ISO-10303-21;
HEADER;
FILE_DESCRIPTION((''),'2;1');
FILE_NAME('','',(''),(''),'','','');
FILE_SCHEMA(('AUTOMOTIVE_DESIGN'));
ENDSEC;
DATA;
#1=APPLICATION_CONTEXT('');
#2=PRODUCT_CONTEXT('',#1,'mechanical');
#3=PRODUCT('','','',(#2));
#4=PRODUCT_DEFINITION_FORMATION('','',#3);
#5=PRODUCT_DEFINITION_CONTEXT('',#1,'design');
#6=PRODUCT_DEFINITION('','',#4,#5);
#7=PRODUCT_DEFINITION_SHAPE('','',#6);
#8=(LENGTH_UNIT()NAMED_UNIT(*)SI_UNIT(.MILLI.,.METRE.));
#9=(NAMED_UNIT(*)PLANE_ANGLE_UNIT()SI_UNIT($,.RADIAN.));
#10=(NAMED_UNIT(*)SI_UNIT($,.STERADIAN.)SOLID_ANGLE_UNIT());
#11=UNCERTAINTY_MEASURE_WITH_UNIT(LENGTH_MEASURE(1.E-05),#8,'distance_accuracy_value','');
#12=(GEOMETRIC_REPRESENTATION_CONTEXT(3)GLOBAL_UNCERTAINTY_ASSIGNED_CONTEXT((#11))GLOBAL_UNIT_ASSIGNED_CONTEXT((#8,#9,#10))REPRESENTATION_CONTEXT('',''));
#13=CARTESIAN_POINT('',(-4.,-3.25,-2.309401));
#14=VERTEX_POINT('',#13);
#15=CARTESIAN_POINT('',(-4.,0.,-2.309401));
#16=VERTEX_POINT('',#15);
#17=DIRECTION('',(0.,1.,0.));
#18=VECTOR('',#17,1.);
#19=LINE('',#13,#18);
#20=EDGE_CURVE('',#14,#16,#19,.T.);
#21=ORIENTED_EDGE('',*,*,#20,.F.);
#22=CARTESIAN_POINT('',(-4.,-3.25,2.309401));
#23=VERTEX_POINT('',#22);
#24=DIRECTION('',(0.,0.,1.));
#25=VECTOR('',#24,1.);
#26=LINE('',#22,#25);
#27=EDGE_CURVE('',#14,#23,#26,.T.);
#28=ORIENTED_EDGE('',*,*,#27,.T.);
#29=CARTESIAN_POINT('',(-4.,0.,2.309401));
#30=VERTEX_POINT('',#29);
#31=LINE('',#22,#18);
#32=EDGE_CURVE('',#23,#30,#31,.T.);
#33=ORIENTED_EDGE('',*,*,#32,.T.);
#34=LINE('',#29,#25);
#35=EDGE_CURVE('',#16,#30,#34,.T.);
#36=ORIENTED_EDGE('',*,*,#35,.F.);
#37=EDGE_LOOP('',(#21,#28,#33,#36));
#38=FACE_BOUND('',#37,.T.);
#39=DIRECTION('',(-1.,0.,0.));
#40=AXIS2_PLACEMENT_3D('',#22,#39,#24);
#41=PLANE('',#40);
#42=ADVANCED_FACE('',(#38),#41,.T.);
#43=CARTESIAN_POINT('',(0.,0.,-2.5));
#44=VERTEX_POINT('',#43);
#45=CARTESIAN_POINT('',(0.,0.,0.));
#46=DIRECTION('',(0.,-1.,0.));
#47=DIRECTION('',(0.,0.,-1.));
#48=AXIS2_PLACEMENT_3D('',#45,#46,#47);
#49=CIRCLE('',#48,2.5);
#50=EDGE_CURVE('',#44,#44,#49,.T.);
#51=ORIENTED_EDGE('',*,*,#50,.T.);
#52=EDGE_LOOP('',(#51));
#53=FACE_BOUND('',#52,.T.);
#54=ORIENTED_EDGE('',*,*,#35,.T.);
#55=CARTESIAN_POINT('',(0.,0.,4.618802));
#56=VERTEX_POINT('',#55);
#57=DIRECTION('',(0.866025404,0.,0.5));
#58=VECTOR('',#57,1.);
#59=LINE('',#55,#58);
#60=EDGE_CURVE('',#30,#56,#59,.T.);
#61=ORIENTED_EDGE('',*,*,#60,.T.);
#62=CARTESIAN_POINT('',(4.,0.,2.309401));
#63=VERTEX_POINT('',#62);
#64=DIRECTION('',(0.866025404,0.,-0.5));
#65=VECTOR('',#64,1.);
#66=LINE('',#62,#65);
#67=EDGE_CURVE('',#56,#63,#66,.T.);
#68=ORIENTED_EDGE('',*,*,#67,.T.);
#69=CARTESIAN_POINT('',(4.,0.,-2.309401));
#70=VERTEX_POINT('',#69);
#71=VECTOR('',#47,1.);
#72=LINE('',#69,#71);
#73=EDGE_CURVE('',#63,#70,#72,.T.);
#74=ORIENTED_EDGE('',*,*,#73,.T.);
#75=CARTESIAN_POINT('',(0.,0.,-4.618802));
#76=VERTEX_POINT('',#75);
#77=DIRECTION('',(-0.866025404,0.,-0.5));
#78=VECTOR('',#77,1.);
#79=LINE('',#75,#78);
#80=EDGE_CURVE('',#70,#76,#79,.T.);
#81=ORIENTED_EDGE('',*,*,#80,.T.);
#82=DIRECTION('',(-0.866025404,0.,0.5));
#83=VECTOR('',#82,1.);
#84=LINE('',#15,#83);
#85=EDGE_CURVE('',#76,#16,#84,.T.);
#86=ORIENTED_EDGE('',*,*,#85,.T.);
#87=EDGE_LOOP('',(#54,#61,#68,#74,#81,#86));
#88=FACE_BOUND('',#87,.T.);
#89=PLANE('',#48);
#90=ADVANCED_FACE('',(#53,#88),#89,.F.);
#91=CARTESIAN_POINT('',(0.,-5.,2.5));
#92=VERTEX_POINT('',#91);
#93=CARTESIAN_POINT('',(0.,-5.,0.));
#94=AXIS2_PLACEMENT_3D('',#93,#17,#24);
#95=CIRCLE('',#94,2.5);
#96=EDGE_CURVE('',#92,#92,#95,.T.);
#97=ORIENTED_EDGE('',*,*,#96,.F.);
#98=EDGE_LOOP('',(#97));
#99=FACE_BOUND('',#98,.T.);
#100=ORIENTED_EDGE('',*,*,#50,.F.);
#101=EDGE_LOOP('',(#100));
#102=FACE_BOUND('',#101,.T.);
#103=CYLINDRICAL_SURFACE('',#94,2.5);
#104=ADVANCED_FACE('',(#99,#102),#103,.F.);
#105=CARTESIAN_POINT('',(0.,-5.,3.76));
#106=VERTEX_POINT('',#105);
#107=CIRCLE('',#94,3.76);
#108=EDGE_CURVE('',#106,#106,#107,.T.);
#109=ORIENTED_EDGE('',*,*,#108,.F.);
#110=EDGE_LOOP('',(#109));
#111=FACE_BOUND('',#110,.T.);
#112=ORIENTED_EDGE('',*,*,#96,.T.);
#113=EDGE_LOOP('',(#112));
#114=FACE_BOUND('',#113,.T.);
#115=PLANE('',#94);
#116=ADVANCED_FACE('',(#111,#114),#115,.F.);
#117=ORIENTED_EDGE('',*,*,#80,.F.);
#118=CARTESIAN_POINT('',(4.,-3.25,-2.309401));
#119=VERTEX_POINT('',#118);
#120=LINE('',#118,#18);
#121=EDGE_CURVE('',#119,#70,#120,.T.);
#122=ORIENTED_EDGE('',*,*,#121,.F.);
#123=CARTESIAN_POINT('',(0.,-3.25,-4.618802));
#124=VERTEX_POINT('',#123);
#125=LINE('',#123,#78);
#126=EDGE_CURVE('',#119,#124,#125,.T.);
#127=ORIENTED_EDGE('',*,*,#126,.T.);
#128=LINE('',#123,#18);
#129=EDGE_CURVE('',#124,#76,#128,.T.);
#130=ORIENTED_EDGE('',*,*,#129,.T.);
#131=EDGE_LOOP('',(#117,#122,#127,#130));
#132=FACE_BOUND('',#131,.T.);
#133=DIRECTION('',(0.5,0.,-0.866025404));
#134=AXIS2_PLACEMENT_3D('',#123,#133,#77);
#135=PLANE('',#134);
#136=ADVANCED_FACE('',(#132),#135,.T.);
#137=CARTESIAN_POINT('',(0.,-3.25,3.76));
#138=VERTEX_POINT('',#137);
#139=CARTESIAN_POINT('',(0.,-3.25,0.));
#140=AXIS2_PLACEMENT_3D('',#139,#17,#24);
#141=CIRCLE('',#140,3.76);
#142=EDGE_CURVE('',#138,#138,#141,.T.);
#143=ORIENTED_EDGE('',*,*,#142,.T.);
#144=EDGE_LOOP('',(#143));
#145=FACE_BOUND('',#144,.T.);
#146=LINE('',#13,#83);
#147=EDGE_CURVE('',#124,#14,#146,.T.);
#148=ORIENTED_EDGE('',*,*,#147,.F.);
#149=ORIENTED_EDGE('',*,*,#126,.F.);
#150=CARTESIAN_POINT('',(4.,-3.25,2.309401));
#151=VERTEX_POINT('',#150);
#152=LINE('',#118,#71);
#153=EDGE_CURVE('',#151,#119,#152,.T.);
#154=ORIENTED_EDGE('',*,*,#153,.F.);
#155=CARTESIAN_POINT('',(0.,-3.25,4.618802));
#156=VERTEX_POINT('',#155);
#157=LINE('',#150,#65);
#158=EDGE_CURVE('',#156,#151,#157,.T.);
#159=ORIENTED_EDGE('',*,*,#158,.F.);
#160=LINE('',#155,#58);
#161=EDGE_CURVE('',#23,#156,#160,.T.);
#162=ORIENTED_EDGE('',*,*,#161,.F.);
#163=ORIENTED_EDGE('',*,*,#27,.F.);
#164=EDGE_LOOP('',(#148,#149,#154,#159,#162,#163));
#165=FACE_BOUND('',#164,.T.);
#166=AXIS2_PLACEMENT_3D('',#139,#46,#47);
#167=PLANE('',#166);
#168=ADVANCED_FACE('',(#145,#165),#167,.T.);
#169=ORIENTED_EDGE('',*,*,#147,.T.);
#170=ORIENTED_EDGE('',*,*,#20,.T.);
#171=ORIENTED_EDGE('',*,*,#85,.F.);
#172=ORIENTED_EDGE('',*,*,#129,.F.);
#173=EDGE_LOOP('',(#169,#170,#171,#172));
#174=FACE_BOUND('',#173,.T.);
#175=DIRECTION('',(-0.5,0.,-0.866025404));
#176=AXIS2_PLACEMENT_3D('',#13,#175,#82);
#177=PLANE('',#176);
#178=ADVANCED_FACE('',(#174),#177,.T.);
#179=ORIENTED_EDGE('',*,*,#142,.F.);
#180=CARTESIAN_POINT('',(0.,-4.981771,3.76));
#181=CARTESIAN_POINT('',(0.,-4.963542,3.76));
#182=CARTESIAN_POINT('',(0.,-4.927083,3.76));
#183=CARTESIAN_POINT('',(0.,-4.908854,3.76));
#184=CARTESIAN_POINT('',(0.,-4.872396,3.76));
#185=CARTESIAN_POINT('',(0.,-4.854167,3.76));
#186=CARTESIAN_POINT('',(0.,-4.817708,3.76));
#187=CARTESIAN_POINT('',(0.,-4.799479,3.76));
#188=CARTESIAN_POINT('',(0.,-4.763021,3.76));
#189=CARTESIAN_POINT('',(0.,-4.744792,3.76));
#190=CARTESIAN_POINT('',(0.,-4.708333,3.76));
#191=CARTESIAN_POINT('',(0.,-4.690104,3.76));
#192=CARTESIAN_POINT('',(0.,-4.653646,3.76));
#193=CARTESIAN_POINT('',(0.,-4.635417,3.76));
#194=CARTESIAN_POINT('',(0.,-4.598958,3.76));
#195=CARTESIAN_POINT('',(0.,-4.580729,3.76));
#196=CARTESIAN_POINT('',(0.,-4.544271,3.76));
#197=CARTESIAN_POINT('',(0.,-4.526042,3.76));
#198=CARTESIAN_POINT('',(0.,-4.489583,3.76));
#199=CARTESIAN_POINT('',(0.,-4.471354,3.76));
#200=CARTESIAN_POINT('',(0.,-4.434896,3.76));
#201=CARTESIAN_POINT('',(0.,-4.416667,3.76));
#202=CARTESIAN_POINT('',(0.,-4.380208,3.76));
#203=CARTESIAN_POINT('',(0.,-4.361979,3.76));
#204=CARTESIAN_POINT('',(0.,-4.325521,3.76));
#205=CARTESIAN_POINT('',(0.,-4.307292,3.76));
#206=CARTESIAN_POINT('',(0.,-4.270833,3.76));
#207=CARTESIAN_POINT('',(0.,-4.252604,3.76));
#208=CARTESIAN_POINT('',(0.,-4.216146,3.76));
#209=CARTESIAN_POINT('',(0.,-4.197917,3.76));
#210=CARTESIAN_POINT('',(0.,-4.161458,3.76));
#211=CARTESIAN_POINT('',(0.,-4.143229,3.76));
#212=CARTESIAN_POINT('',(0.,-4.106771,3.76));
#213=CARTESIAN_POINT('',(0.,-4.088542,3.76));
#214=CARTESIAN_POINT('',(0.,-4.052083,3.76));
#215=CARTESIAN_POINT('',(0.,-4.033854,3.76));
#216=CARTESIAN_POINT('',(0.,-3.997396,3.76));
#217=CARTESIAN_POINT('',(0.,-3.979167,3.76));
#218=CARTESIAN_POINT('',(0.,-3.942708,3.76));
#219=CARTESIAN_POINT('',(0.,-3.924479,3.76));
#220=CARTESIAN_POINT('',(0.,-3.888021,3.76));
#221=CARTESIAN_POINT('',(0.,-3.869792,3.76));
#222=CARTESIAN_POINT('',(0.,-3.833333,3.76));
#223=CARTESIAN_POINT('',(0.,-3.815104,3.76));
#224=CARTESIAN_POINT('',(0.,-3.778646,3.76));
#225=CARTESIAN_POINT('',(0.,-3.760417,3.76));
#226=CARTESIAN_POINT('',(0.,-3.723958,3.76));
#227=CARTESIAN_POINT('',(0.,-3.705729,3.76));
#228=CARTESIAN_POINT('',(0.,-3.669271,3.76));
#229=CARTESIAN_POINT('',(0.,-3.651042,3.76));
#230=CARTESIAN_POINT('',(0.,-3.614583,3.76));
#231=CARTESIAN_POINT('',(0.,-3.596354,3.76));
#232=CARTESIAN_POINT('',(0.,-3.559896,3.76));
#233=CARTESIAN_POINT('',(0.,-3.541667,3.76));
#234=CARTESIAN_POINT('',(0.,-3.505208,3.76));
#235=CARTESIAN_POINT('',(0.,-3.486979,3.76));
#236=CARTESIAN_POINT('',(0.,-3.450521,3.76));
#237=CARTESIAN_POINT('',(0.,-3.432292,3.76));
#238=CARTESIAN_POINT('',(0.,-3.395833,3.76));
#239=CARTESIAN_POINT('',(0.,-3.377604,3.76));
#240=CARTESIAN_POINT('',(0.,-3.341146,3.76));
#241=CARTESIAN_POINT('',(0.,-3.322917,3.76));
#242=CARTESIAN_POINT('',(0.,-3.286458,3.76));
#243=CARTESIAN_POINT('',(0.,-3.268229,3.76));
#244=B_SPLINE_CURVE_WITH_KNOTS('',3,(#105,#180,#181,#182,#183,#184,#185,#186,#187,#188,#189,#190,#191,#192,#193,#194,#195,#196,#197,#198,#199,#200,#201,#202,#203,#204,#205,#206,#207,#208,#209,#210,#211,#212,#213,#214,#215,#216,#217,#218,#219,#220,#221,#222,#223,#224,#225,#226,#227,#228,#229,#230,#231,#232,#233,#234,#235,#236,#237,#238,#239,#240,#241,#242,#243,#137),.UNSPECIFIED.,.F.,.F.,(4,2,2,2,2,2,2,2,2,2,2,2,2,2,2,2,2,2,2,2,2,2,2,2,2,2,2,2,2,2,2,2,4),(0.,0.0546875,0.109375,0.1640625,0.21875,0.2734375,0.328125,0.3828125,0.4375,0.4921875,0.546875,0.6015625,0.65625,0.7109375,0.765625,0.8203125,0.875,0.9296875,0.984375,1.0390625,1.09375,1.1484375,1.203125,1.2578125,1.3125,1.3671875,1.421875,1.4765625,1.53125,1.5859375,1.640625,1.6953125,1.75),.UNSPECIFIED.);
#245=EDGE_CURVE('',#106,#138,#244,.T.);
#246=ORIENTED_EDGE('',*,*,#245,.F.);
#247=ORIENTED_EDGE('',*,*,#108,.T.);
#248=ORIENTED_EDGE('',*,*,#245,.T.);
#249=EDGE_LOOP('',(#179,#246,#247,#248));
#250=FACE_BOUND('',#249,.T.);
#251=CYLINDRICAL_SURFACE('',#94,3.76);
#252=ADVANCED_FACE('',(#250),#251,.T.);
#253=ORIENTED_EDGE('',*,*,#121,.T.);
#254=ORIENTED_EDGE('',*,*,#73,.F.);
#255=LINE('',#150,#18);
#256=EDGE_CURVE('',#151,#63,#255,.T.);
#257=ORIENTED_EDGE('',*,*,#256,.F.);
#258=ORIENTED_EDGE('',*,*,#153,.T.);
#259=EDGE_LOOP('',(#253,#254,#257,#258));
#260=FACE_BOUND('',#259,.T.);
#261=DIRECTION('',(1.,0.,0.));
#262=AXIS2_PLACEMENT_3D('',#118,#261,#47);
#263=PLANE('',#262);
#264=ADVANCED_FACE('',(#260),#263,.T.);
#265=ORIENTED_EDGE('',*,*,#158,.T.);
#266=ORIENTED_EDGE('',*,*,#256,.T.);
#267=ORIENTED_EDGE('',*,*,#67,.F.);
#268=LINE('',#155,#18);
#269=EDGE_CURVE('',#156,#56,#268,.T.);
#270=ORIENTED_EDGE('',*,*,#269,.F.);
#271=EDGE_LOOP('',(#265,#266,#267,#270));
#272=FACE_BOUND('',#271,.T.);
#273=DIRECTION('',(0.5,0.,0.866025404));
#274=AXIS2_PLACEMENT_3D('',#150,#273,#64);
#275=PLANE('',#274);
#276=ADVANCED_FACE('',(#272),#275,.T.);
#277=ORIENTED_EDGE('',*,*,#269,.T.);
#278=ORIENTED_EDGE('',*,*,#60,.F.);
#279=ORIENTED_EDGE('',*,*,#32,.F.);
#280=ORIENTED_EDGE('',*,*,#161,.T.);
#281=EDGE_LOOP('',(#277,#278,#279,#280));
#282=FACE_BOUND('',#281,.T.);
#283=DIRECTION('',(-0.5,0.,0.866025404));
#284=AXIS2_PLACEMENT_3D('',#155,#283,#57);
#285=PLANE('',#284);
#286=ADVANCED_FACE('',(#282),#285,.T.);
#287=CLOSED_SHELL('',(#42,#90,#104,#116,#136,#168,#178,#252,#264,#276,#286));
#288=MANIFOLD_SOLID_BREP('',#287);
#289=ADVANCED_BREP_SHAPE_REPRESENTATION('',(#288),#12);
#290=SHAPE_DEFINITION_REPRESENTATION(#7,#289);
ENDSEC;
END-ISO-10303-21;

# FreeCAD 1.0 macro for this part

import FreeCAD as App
import Part
import Sketcher
Q = App.Units.Quantity

doc = App.newDocument("Part")
body = doc.addObject("PartDesign::Body", "Body")

# Sketch on XZ plane
sketch1 = body.newObject("Sketcher::SketchObject", "Sketch")
sketch1.AttachmentSupport = (doc.getObject("XZ_Plane"), [""])
sketch1.MapMode = "FlatFace"
sketch1.addGeometry(Part.LineSegment(App.Vector(0, 4.6, 0), App.Vector(4, 2.3, 0)), False)
sketch1.addGeometry(Part.LineSegment(App.Vector(4, 2.3, 0), App.Vector(4, -2.3, 0)), False)
sketch1.addGeometry(Part.LineSegment(App.Vector(4, -2.3, 0), App.Vector(0, -4.6, 0)), False)
sketch1.addGeometry(Part.LineSegment(App.Vector(0, -4.6, 0), App.Vector(-4, -2.3, 0)), False)
sketch1.addGeometry(Part.LineSegment(App.Vector(-4, -2.3, 0), App.Vector(-4, 2.3, 0)), False)
sketch1.addGeometry(Part.LineSegment(App.Vector(-4, 2.3, 0), App.Vector(0, 4.6, 0)), False)
sketch1.addConstraint(Sketcher.Constraint("Coincident", 0, 2, 1, 1))
sketch1.addConstraint(Sketcher.Constraint("Coincident", 1, 2, 2, 1))
sketch1.addConstraint(Sketcher.Constraint("Coincident", 2, 2, 3, 1))
sketch1.addConstraint(Sketcher.Constraint("Coincident", 3, 2, 4, 1))
sketch1.addConstraint(Sketcher.Constraint("Coincident", 4, 2, 5, 1))
sketch1.addConstraint(Sketcher.Constraint("Coincident", 5, 2, 0, 1))
sketch1.addConstraint(Sketcher.Constraint("Vertical", 1))
sketch1.addConstraint(Sketcher.Constraint("Vertical", 4))
sketch1.addConstraint(Sketcher.Constraint("Symmetric", 0, 2, 3, 2, -1, 1))
sketch1.addConstraint(Sketcher.Constraint("Symmetric", 2, 2, 5, 2, -1, 1))
sketch1.addConstraint(Sketcher.Constraint("PointOnObject", 2, 2, -2))
sketch1.addConstraint(Sketcher.Constraint("Parallel", 2, 5))
sketch1.addConstraint(Sketcher.Constraint("Horizontal", 1, 2, 3, 2))
sketch1.addConstraint(Sketcher.Constraint("Angle", 0, Q("-30 deg")))
sketch1.addConstraint(Sketcher.Constraint("DistanceX", -1, 1, 0, 2, Q("4 mm")))
sketch1.addConstraint(Sketcher.Constraint("DistanceY", -1, 1, 0, 2, Q("2.309401 mm")))
pad1 = body.newObject("PartDesign::Pad", "Pad")
pad1.Profile = sketch1
pad1.Length = 3.25

# Sketch on XZ plane
sketch2 = body.newObject("Sketcher::SketchObject", "Sketch001")
sketch2.AttachmentSupport = (doc.getObject("XZ_Plane"), [""])
sketch2.MapMode = "FlatFace"
sketch2.AttachmentOffset = App.Placement(App.Vector(0, 0, 3.25), App.Rotation())
sketch2.addGeometry(Part.Circle(App.Vector(0, 0, 0), App.Vector(0, 0, 1), 3.8), False)
sketch2.addConstraint(Sketcher.Constraint("Coincident", 0, 3, -1, 1))
sketch2.addConstraint(Sketcher.Constraint("Diameter", 0, Q("7.52 mm")))
pad2 = body.newObject("PartDesign::Pad", "Pad001")
pad2.Profile = sketch2
pad2.Length = 1.75

# Sketch on XZ plane
sketch3 = body.newObject("Sketcher::SketchObject", "Sketch002")
sketch3.AttachmentSupport = (doc.getObject("XZ_Plane"), [""])
sketch3.MapMode = "FlatFace"
sketch3.addGeometry(Part.Circle(App.Vector(0, 0, 0), App.Vector(0, 0, 1), 2.5), False)
sketch3.addConstraint(Sketcher.Constraint("Coincident", 0, 3, -1, 1))
sketch3.addConstraint(Sketcher.Constraint("Diameter", 0, Q("5 mm")))
pocket1 = body.newObject("PartDesign::Pocket", "Pocket")
pocket1.Profile = sketch3
pocket1.Type = "ThroughAll"
pocket1.Midplane = True

doc.recompute()
